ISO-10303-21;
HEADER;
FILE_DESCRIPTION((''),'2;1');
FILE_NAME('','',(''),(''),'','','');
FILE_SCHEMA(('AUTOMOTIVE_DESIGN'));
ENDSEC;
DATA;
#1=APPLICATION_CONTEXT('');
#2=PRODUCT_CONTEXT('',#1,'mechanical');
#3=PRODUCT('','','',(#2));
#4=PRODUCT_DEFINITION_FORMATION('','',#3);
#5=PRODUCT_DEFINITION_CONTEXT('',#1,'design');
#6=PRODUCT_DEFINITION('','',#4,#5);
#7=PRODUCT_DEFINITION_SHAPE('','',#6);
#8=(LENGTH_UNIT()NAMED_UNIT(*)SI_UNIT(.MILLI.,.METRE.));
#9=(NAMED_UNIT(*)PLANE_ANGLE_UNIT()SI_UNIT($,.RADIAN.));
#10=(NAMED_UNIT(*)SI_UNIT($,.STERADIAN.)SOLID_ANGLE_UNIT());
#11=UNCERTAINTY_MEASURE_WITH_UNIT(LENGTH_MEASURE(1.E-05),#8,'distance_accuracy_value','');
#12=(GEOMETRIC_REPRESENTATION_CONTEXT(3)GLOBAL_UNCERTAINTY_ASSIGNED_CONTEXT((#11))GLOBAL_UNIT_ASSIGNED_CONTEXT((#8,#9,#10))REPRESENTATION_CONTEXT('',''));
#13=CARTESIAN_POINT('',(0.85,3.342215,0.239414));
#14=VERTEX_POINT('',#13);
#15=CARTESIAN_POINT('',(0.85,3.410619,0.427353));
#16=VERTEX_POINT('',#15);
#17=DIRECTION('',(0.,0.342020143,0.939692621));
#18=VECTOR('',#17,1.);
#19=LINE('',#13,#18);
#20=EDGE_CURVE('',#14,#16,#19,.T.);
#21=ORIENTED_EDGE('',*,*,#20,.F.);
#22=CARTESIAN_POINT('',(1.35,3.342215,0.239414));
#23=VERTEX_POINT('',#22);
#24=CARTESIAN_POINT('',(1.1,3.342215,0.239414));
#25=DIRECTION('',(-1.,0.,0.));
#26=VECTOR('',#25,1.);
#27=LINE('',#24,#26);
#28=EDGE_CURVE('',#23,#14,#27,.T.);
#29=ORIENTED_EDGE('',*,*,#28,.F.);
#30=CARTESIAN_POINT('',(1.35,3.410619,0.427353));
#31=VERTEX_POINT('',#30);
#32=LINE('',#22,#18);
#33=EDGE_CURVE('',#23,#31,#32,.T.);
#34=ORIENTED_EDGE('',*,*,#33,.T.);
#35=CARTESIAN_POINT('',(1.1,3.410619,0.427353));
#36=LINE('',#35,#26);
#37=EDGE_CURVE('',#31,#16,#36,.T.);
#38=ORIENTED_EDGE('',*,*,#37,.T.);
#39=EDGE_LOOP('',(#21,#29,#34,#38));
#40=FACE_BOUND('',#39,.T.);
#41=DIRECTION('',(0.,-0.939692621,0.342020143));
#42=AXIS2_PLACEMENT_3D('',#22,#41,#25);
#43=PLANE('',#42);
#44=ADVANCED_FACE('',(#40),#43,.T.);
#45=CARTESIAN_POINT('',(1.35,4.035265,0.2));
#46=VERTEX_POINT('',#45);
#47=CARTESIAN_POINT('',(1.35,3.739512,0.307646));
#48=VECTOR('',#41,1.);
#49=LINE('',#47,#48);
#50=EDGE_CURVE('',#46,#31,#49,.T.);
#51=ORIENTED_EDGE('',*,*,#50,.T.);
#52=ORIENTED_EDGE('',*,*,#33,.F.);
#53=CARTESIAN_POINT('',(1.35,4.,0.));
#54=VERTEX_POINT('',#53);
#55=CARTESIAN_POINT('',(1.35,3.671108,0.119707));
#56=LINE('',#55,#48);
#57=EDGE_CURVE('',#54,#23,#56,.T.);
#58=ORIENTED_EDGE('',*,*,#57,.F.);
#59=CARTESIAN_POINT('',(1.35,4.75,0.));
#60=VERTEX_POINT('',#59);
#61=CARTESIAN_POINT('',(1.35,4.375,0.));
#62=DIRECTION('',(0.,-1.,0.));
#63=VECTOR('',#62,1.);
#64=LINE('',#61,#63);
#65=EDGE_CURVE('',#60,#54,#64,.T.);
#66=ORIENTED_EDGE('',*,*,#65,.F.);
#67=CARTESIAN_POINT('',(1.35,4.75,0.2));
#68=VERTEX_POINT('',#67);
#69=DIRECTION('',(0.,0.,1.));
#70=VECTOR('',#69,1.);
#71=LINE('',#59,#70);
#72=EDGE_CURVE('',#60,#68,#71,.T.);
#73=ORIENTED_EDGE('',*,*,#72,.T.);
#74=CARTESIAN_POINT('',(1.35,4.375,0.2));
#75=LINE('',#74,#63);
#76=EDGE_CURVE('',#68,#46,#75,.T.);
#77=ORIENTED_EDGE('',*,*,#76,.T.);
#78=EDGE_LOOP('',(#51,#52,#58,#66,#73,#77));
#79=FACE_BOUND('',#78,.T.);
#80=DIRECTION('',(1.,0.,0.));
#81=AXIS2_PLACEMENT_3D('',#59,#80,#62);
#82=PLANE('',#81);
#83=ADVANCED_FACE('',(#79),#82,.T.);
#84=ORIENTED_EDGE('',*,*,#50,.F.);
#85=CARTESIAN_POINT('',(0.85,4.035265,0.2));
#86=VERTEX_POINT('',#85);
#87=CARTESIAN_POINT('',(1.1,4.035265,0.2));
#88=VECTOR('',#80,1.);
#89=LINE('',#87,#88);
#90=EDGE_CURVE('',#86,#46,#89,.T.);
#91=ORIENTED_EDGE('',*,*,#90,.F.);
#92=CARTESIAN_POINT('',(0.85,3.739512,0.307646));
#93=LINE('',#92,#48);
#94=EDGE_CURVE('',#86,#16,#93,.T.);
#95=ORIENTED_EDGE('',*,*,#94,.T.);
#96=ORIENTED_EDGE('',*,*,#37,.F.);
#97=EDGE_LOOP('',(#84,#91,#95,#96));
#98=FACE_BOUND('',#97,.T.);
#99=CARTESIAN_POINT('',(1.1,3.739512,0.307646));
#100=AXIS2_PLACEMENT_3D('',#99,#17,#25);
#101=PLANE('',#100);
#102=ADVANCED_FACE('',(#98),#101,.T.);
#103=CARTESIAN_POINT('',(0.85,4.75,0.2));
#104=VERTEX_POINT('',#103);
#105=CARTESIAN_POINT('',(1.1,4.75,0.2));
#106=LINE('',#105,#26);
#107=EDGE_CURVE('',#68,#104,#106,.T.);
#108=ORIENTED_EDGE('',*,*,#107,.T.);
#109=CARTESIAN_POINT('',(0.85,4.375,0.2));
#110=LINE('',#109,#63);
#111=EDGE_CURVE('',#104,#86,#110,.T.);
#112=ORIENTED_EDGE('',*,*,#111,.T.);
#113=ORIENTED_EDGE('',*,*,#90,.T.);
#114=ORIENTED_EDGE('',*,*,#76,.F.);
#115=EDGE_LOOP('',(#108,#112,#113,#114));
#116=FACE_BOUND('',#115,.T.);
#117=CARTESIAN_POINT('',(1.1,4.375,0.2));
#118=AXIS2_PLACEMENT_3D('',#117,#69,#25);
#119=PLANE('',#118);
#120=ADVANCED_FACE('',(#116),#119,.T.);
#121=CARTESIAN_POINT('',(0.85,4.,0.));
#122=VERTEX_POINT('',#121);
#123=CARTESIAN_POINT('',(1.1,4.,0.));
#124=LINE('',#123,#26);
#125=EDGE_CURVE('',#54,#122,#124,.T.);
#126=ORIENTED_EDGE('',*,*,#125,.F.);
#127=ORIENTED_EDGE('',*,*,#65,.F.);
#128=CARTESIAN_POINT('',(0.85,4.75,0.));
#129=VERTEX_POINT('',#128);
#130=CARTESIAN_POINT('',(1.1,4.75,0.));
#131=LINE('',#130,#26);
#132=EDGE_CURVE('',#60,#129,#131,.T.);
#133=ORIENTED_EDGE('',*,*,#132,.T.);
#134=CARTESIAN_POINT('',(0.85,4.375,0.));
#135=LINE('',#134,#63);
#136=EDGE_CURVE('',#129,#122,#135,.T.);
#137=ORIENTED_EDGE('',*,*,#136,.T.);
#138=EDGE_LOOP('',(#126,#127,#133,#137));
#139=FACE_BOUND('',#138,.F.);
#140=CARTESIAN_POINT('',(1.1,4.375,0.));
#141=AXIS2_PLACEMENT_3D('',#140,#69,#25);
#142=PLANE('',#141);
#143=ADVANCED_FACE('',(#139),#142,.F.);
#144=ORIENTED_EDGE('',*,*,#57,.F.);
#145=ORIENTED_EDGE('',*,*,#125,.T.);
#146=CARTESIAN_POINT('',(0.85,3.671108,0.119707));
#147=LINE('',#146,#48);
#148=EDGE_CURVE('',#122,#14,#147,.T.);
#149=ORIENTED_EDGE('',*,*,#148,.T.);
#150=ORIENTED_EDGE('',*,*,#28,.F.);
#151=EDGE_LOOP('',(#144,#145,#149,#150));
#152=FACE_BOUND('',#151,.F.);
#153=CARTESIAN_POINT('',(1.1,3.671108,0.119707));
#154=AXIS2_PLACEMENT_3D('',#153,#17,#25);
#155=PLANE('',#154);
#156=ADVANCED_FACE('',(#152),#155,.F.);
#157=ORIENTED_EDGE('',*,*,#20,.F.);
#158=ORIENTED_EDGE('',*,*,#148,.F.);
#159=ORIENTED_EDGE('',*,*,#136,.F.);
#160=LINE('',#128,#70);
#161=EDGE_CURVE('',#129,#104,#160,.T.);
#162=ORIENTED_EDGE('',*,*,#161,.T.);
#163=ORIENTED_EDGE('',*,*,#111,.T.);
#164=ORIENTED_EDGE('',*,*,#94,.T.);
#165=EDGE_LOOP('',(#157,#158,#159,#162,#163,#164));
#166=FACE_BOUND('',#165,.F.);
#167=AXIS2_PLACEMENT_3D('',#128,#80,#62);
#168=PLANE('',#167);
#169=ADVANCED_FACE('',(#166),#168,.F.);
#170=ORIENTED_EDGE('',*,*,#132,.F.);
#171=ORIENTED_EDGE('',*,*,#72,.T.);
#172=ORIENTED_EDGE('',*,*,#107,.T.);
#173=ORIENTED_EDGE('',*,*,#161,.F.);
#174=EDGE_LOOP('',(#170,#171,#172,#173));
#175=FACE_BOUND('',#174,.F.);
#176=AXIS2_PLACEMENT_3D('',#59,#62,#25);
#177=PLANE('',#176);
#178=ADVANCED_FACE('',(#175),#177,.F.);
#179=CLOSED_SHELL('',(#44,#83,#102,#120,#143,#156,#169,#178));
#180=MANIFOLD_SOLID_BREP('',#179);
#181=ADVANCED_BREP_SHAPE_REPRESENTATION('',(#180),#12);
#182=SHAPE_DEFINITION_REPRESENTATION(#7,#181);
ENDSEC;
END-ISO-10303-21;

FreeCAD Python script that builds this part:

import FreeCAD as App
import Part
import Sketcher
from FreeCAD import Vector
Q = App.Units.Quantity


def add_polygon(sketch, points):
    """Adds a closed chain of lines whose ends are joined by coincident constraints."""
    first, n = sketch.GeometryCount, len(points)
    for a, b in zip(points, points[1:] + points[:1]):
        sketch.addGeometry(Part.LineSegment(App.Vector(*a, 0), App.Vector(*b, 0)), False)
    for i in range(n):
        sketch.addConstraint(Sketcher.Constraint("Coincident", first + i, 2, first + (i + 1) % n, 1))

doc = App.newDocument("Part")
body = doc.addObject("PartDesign::Body", "Body")

sketch1 = body.newObject("Sketcher::SketchObject", "Sketch")
sketch1.AttachmentSupport = (doc.getObject("XY_Plane"), [""])
sketch1.MapMode = "FlatFace"
add_polygon(sketch1, [(0, -0.5), (0, -1.25), (0.5, -1.25), (0.5, -0.5)])
sketch1.addConstraint(Sketcher.Constraint("Vertical", 0))
sketch1.addConstraint(Sketcher.Constraint("Horizontal", 1))
sketch1.addConstraint(Sketcher.Constraint("Vertical", 2))
sketch1.addConstraint(Sketcher.Constraint("Horizontal", 3))
sketch1.addConstraint(Sketcher.Constraint("PointOnObject", 0, 2, -2))
sketch1.addConstraint(Sketcher.Constraint("DistanceX", 1, 1, 1, 2, Q("0.5 mm")))
sketch1.addConstraint(Sketcher.Constraint("DistanceY", 0, 2, 0, 1, Q("0.75 mm")))
sketch1.addConstraint(Sketcher.Constraint("DistanceY", 2, 2, -1, 1, Q("0.5 mm")))
pad1 = body.newObject("PartDesign::Pad", "Pad")
pad1.Profile = sketch1
pad1.Length = 0.2
body2 = doc.addObject("PartDesign::Body", "Body001")

sketch2 = body2.newObject("Sketcher::SketchObject", "Sketch001")
sketch2.AttachmentSupport = (doc.getObject("XY_Plane001"), [""])
sketch2.MapMode = "FlatFace"
add_polygon(sketch2, [(0, 0.7), (0, 0), (0.5, 0), (0.5, 0.7)])
sketch2.addConstraint(Sketcher.Constraint("Vertical", 0))
sketch2.addConstraint(Sketcher.Constraint("Horizontal", 1))
sketch2.addConstraint(Sketcher.Constraint("Vertical", 2))
sketch2.addConstraint(Sketcher.Constraint("Horizontal", 3))
sketch2.addConstraint(Sketcher.Constraint("Coincident", 0, 2, -1, 1))
sketch2.addConstraint(Sketcher.Constraint("DistanceX", 1, 1, 1, 2, Q("0.5 mm")))
sketch2.addConstraint(Sketcher.Constraint("DistanceY", 0, 2, 0, 1, Q("0.7 mm")))
pad2 = body2.newObject("PartDesign::Pad", "Pad001")
pad2.Profile = sketch2
pad2.Length = 0.2
body3 = doc.addObject("PartDesign::Body", "Body002")
doc.recompute()

body2.Placement = App.Placement(Vector(0, -0.5, 0), App.Rotation(Vector(1, 0, 0), 20))
boolean = body3.newObject("PartDesign::Boolean", "Boolean")
boolean.Type = "Fuse"
boolean.addObjects([body2])
doc.recompute()

boolean2 = body3.newObject("PartDesign::Boolean", "Boolean001")
boolean2.Type = "Fuse"
boolean2.addObjects([body])
body4 = doc.addObject("PartDesign::Body", "Body003")
doc.recompute()

body3.Placement = App.Placement(Vector(1.35, 3.5, 0), App.Rotation(Vector(0, 0, 1), 180))
boolean3 = body4.newObject("PartDesign::Boolean", "Boolean002")
boolean3.Type = "Fuse"
boolean3.addObjects([body3])

doc.recompute()
